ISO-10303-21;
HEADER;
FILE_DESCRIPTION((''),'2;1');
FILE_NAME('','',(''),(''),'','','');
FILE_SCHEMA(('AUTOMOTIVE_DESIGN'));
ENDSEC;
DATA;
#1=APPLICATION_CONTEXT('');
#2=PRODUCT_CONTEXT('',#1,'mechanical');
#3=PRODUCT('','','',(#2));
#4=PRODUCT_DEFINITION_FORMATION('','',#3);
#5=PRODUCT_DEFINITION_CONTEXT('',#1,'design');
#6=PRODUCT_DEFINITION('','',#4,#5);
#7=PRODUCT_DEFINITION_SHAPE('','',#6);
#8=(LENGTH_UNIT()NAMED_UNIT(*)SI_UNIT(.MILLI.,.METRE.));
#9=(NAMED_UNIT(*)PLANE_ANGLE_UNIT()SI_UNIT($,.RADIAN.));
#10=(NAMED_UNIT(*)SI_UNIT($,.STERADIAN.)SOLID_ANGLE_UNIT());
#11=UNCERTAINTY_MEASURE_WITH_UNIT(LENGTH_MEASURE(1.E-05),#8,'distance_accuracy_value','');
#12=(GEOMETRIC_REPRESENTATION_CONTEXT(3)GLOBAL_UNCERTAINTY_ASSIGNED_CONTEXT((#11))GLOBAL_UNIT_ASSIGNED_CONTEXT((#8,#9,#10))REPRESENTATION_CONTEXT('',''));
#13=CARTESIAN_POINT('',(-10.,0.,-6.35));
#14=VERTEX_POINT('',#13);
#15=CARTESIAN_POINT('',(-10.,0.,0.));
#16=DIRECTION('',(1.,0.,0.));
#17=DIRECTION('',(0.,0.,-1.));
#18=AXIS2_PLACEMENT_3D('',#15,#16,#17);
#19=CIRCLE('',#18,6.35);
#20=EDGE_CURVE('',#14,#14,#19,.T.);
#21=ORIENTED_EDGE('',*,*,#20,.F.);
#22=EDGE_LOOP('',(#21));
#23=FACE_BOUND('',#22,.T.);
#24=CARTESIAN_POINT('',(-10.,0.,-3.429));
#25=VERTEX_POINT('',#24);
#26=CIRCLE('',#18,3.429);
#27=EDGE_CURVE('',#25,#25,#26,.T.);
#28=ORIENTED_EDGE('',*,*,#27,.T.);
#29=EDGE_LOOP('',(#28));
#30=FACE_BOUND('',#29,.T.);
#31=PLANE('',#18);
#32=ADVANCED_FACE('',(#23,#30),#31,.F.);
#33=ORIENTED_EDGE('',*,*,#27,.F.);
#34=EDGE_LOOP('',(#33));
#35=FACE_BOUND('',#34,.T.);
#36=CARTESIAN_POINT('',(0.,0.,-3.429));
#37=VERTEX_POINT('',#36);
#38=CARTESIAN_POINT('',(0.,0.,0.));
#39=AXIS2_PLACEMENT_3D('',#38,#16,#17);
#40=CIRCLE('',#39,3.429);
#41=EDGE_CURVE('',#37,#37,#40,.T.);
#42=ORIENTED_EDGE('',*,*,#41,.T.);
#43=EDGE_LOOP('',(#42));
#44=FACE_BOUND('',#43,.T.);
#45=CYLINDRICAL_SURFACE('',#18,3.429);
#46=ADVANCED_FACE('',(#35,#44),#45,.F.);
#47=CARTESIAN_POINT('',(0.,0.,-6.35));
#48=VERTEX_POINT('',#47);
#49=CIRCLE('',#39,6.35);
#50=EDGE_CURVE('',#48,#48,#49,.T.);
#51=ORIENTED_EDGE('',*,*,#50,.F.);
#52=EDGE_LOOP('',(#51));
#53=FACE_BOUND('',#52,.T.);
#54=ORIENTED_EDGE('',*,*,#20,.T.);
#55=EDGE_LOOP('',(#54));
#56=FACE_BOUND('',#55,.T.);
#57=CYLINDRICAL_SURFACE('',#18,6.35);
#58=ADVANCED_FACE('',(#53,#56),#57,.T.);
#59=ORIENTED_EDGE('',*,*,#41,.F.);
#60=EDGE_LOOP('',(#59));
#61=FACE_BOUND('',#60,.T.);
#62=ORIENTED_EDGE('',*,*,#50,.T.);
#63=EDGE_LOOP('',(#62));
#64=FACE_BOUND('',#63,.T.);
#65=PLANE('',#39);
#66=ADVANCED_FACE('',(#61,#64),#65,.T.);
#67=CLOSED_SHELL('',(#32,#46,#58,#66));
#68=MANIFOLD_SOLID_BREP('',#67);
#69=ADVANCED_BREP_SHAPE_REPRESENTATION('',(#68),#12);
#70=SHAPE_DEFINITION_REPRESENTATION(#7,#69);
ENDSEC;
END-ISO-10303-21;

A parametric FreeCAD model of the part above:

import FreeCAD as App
import Part
import Sketcher
from FreeCAD import Vector
Q = App.Units.Quantity

doc = App.newDocument("Part")
params = doc.addObject("Spreadsheet::Sheet", "Params")
for row, (alias, value) in enumerate([
    ("sketch1_diameter", "0.5 in"),
    ("sketch1_diameter2", "0.27 in"),
    ("pad1_length", "10 mm"),
], start=1):
    params.set(f"A{row}", alias)
    params.set(f"B{row}", "=" + value)
    params.setAlias(f"B{row}", alias)

body = doc.addObject("PartDesign::Body", "Body")

sketch1 = body.newObject("Sketcher::SketchObject", "Sketch")
sketch1.AttachmentSupport = (doc.getObject("YZ_Plane"), [""])
sketch1.MapMode = "FlatFace"
sketch1.addGeometry([
    Part.Circle(Vector(0, 0, 0), Vector(0, 0, 1), 6.35),
    Part.Circle(Vector(0, 0, 0), Vector(0, 0, 1), 3.429),
], False)
sketch1.addConstraint([
    Sketcher.Constraint("Coincident", 0, 3, -1, 1),
    Sketcher.Constraint("Coincident", 1, 3, -1, 1),
    Sketcher.Constraint("Diameter", 0, Q("0.5 in")),
    Sketcher.Constraint("Diameter", 1, Q("0.27 in")),
])
sketch1.setExpression("Constraints[2]", "Params.sketch1_diameter")
sketch1.setExpression("Constraints[3]", "Params.sketch1_diameter2")
pad1 = body.newObject("PartDesign::Pad", "Pad")
pad1.Profile = sketch1
pad1.setExpression("Length", "Params.pad1_length")
pad1.Reversed = True

doc.recompute()
